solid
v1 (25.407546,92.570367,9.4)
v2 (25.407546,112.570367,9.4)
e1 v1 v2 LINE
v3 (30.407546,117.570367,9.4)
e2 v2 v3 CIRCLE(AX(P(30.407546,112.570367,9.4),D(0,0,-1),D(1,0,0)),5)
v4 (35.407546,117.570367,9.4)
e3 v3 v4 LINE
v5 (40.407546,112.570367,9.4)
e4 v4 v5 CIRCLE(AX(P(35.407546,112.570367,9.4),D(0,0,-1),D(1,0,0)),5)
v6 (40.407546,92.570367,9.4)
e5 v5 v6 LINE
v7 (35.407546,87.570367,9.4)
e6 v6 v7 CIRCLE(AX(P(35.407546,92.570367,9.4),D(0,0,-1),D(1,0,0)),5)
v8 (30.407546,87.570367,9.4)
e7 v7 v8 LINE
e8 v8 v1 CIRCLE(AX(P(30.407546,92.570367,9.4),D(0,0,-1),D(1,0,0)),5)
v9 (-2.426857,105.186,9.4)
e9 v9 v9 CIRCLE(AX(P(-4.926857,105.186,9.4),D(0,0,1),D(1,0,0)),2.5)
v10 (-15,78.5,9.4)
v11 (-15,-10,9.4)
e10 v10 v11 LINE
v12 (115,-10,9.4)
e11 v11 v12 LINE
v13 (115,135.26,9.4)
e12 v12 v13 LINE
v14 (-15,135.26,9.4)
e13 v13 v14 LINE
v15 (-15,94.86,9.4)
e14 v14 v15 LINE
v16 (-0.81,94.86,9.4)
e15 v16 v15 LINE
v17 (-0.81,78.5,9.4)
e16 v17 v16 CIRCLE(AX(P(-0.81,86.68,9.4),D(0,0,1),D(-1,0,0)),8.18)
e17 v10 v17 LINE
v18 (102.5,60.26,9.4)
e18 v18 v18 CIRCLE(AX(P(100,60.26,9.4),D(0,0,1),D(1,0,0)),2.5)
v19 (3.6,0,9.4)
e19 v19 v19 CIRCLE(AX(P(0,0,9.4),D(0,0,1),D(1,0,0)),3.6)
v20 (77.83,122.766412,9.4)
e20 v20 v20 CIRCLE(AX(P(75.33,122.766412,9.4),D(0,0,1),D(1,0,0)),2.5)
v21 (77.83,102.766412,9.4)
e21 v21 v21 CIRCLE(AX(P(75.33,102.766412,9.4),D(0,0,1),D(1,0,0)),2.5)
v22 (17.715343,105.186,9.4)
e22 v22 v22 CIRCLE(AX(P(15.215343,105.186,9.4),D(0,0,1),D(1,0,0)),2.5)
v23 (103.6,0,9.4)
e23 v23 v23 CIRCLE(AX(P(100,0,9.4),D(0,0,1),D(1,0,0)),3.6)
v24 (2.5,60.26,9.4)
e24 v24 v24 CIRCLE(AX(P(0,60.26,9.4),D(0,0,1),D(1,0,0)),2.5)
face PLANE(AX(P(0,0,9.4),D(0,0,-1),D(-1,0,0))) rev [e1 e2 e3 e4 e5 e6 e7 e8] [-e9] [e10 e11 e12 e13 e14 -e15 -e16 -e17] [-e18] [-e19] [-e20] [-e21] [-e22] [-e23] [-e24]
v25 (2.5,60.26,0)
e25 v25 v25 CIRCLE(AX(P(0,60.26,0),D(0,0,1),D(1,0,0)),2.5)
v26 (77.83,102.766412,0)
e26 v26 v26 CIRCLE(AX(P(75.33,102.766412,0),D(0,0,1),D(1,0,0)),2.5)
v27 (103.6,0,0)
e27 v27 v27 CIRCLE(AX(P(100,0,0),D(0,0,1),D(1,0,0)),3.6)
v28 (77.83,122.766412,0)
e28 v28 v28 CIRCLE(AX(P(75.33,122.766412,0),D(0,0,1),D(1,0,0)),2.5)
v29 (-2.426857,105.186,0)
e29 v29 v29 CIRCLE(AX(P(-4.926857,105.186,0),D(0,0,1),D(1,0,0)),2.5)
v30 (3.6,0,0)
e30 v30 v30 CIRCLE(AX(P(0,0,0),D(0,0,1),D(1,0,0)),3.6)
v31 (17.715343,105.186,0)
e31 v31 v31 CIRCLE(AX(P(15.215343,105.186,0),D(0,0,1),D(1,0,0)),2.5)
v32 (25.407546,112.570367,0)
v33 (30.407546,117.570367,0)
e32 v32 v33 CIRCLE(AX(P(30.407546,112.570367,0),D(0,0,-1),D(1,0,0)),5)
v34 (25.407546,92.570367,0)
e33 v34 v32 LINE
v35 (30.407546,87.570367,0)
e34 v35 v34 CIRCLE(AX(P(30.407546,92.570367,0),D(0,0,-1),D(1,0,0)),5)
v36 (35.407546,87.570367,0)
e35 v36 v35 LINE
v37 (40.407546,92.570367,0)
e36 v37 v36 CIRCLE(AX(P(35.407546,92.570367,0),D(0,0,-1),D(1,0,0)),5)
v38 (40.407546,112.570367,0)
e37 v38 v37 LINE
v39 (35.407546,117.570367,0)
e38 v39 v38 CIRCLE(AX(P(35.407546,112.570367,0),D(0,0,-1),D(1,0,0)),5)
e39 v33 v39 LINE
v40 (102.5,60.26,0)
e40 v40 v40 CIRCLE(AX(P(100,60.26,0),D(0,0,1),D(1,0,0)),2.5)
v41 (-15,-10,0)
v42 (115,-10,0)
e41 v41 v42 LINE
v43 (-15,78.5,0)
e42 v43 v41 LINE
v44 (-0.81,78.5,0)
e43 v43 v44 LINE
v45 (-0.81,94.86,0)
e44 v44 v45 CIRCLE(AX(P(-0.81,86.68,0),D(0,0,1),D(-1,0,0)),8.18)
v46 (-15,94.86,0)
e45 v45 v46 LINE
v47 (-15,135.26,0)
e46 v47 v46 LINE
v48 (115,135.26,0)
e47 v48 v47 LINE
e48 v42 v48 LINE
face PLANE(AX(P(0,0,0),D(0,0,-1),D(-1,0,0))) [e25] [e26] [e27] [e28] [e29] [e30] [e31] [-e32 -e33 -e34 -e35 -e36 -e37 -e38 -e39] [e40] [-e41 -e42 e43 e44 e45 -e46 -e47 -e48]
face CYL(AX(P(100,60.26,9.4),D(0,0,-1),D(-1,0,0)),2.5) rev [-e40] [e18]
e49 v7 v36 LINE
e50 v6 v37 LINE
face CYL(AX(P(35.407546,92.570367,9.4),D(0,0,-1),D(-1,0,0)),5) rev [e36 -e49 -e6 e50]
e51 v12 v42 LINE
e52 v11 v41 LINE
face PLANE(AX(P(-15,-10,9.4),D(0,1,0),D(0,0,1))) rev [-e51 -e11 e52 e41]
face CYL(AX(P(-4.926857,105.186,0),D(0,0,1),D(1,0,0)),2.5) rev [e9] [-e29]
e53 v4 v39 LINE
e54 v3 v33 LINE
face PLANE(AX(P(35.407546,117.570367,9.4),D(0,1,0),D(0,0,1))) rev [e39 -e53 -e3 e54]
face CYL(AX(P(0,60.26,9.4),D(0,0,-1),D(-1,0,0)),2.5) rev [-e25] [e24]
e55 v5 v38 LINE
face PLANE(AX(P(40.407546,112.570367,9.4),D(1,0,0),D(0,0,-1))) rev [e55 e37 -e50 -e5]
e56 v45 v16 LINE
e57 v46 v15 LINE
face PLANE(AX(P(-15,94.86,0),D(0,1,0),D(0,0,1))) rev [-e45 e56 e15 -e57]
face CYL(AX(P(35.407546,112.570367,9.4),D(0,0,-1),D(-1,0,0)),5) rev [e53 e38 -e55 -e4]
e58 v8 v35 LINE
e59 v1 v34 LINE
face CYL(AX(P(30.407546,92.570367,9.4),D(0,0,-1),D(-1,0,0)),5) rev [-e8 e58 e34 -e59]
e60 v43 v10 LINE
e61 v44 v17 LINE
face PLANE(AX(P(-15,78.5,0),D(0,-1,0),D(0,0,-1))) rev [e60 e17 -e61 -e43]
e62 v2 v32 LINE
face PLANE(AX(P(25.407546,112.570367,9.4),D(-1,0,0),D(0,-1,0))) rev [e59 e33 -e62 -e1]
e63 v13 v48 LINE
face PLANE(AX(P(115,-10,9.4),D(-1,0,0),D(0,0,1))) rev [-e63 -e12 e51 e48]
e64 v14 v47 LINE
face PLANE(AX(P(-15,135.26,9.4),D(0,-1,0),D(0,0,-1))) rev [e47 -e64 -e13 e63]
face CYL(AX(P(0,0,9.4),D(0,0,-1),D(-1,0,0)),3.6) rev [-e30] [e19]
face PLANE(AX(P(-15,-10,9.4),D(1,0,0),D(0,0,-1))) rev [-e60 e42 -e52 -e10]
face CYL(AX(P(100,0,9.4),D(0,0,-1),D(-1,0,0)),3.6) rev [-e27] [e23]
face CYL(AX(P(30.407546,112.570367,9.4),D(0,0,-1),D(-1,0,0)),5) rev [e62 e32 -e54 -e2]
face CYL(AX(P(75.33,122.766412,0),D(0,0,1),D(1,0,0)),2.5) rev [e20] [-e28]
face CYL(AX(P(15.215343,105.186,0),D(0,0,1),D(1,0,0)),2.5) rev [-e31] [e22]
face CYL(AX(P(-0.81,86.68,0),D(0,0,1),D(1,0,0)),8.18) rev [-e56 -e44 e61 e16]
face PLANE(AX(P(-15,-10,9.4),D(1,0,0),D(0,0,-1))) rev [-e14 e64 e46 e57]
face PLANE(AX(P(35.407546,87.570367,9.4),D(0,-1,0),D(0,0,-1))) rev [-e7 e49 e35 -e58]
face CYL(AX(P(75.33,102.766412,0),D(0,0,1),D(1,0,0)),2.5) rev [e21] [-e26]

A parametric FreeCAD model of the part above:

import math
import FreeCAD as App
import Part
import Sketcher
from FreeCAD import Vector
Q = App.Units.Quantity

doc = App.newDocument("Part")
body = doc.addObject("PartDesign::Body", "Body")

sketch1 = body.newObject("Sketcher::SketchObject", "Sketch")
sketch1.AttachmentSupport = (doc.getObject("XY_Plane"), [""])
sketch1.MapMode = "FlatFace"
sketch1.addGeometry(Part.LineSegment(Vector(-15, 135.26, 0), Vector(-15, -10, 0)), False)
sketch1.addGeometry(Part.LineSegment(Vector(-15, -10, 0), Vector(115, -10, 0)), False)
sketch1.addGeometry(Part.LineSegment(Vector(115, -10, 0), Vector(115, 135.26, 0)), False)
sketch1.addGeometry(Part.LineSegment(Vector(115, 135.26, 0), Vector(-15, 135.26, 0)), False)
sketch1.addGeometry(Part.Circle(Vector(0, 0, 0), Vector(0, 0, 1), 3.6), False)
sketch1.addGeometry(Part.Circle(Vector(100, 0, 0), Vector(0, 0, 1), 3.6), False)
sketch1.addGeometry(Part.Circle(Vector(0, 60.26, 0), Vector(0, 0, 1), 2.5), False)
sketch1.addGeometry(Part.Circle(Vector(100, 60.26, 0), Vector(0, 0, 1), 2.5), False)
sketch1.addConstraint(Sketcher.Constraint("Coincident", 0, 2, 1, 1))
sketch1.addConstraint(Sketcher.Constraint("Coincident", 1, 2, 2, 1))
sketch1.addConstraint(Sketcher.Constraint("Coincident", 2, 2, 3, 1))
sketch1.addConstraint(Sketcher.Constraint("Coincident", 3, 2, 0, 1))
sketch1.addConstraint(Sketcher.Constraint("Vertical", 0))
sketch1.addConstraint(Sketcher.Constraint("Horizontal", 1))
sketch1.addConstraint(Sketcher.Constraint("Vertical", 2))
sketch1.addConstraint(Sketcher.Constraint("Horizontal", 3))
sketch1.addConstraint(Sketcher.Constraint("Coincident", 4, 3, -1, 1))
sketch1.addConstraint(Sketcher.Constraint("Equal", 4, 5))
sketch1.addConstraint(Sketcher.Constraint("Equal", 6, 7))
sketch1.addConstraint(Sketcher.Constraint("PointOnObject", 5, 3, -1))
sketch1.addConstraint(Sketcher.Constraint("PointOnObject", 6, 3, -2))
sketch1.addConstraint(Sketcher.Constraint("Horizontal", 6, 3, 7, 3))
sketch1.addConstraint(Sketcher.Constraint("Vertical", 5, 3, 7, 3))
sketch1.addConstraint(Sketcher.Constraint("Diameter", 6, Q("5 mm")))
sketch1.addConstraint(Sketcher.Constraint("Diameter", 4, Q("7.2 mm")))
sketch1.addConstraint(Sketcher.Constraint("DistanceX", 1, 1, 1, 2, Q("130 mm")))
sketch1.addConstraint(Sketcher.Constraint("DistanceX", -1, 1, 5, 3, Q("100 mm")))
sketch1.addConstraint(Sketcher.Constraint("DistanceX", 0, 2, -1, 1, Q("15 mm")))
sketch1.addConstraint(Sketcher.Constraint("DistanceY", 0, 2, -1, 1, Q("10 mm")))
sketch1.addConstraint(Sketcher.Constraint("DistanceY", 7, 3, 2, 2, Q("75 mm")))
sketch1.addConstraint(Sketcher.Constraint("DistanceY", 0, 2, 0, 1, Q("145.26 mm")))
pad1 = body.newObject("PartDesign::Pad", "Pad")
pad1.Profile = sketch1
pad1.Length = 9.4

sketch2 = body.newObject("Sketcher::SketchObject", "Sketch001")
sketch2.AttachmentSupport = (doc.getObject("XY_Plane"), [""])
sketch2.MapMode = "FlatFace"
sketch2.AttachmentOffset = App.Placement(Vector(0, 0, 9.4), App.Rotation())
sketch2.addGeometry(Part.Circle(Vector(75.33, 122.766412, 0), Vector(0, 0, 1), 2.5), False)
sketch2.addGeometry(Part.Circle(Vector(75.33, 102.766412, 0), Vector(0, 0, 1), 2.5), False)
sketch2.addConstraint(Sketcher.Constraint("Equal", 0, 1))
sketch2.addConstraint(Sketcher.Constraint("Vertical", 0, 3, 1, 3))
sketch2.addConstraint(Sketcher.Constraint("Diameter", 0, Q("5 mm")))
sketch2.addConstraint(Sketcher.Constraint("DistanceY", 1, 3, 0, 3, Q("20 mm")))
sketch2.addConstraint(Sketcher.Constraint("DistanceX", -1, 1, 0, 3, Q("75.33 mm")))
sketch2.addConstraint(Sketcher.Constraint("DistanceY", -1, 1, 0, 3, Q("122.766412 mm")))
pocket1 = body.newObject("PartDesign::Pocket", "Pocket")
pocket1.Profile = sketch2
pocket1.Type = "ThroughAll"

sketch3 = body.newObject("Sketcher::SketchObject", "Sketch002")
sketch3.AttachmentSupport = (doc.getObject("XY_Plane"), [""])
sketch3.MapMode = "FlatFace"
sketch3.addGeometry(Part.LineSegment(Vector(30.407546, 117.570367, 0), Vector(35.407546, 117.570367, 0)), False)
sketch3.addGeometry(Part.ArcOfCircle(Part.Circle(Vector(35.407546, 112.570367, 0), Vector(0, 0, 1), 5), math.radians(0), math.radians(90)), False)
sketch3.addGeometry(Part.LineSegment(Vector(40.407546, 112.570367, 0), Vector(40.407546, 92.570367, 0)), False)
sketch3.addGeometry(Part.ArcOfCircle(Part.Circle(Vector(35.407546, 92.570367, 0), Vector(0, 0, 1), 5), math.radians(-90), math.radians(0)), False)
sketch3.addGeometry(Part.LineSegment(Vector(35.407546, 87.570367, 0), Vector(30.407546, 87.570367, 0)), False)
sketch3.addGeometry(Part.ArcOfCircle(Part.Circle(Vector(30.407546, 92.570367, 0), Vector(0, 0, 1), 5), math.radians(180), math.radians(270)), False)
sketch3.addGeometry(Part.LineSegment(Vector(25.407546, 92.570367, 0), Vector(25.407546, 112.570367, 0)), False)
sketch3.addGeometry(Part.ArcOfCircle(Part.Circle(Vector(30.407546, 112.570367, 0), Vector(0, 0, 1), 5), math.radians(90), math.radians(180)), False)
sketch3.addConstraint(Sketcher.Constraint("Tangent", 0, 2, 1, 2))
sketch3.addConstraint(Sketcher.Constraint("Tangent", 1, 1, 2, 1))
sketch3.addConstraint(Sketcher.Constraint("Tangent", 2, 2, 3, 2))
sketch3.addConstraint(Sketcher.Constraint("Tangent", 3, 1, 4, 1))
sketch3.addConstraint(Sketcher.Constraint("Tangent", 4, 2, 5, 2))
sketch3.addConstraint(Sketcher.Constraint("Tangent", 5, 1, 6, 1))
sketch3.addConstraint(Sketcher.Constraint("Tangent", 6, 2, 7, 2))
sketch3.addConstraint(Sketcher.Constraint("Tangent", 7, 1, 0, 1))
sketch3.addConstraint(Sketcher.Constraint("Horizontal", 0))
sketch3.addConstraint(Sketcher.Constraint("Vertical", 2))
sketch3.addConstraint(Sketcher.Constraint("Horizontal", 4))
sketch3.addConstraint(Sketcher.Constraint("Vertical", 6))
sketch3.addConstraint(Sketcher.Constraint("Equal", 1, 3))
sketch3.addConstraint(Sketcher.Constraint("Equal", 3, 5))
sketch3.addConstraint(Sketcher.Constraint("Equal", 5, 7))
sketch3.addConstraint(Sketcher.Constraint("Radius", 1, Q("5 mm")))
sketch3.addConstraint(Sketcher.Constraint("DistanceX", 0, 1, 0, 2, Q("5 mm")))
sketch3.addConstraint(Sketcher.Constraint("DistanceY", 2, 2, 2, 1, Q("20 mm")))
sketch3.addConstraint(Sketcher.Constraint("DistanceX", -1, 1, 1, 3, Q("35.407546 mm")))
sketch3.addConstraint(Sketcher.Constraint("DistanceY", -1, 1, 1, 3, Q("112.570367 mm")))
pocket2 = body.newObject("PartDesign::Pocket", "Pocket001")
pocket2.Profile = sketch3
pocket2.Type = "ThroughAll"
pocket2.Reversed = True

sketch4 = body.newObject("Sketcher::SketchObject", "Sketch003")
sketch4.AttachmentSupport = (doc.getObject("XY_Plane"), [""])
sketch4.MapMode = "FlatFace"
sketch4.AttachmentOffset = App.Placement(Vector(0, 0, 9.4), App.Rotation())
sketch4.addGeometry(Part.LineSegment(Vector(-15, 94.86, 0), Vector(-15, 78.5, 0)), False)
sketch4.addGeometry(Part.LineSegment(Vector(-15, 78.5, 0), Vector(-0.81, 78.5, 0)), False)
sketch4.addGeometry(Part.ArcOfCircle(Part.Circle(Vector(-0.81, 86.68, 0), Vector(0, 0, 1), 8.18), math.radians(-90), math.radians(90)), False)
sketch4.addGeometry(Part.LineSegment(Vector(-0.81, 94.86, 0), Vector(-15, 94.86, 0)), False)
sketch4.addConstraint(Sketcher.Constraint("Coincident", 0, 2, 1, 1))
sketch4.addConstraint(Sketcher.Constraint("Tangent", 1, 2, 2, 1))
sketch4.addConstraint(Sketcher.Constraint("Tangent", 2, 2, 3, 1))
sketch4.addConstraint(Sketcher.Constraint("Coincident", 3, 2, 0, 1))
sketch4.addConstraint(Sketcher.Constraint("Vertical", 0))
sketch4.addConstraint(Sketcher.Constraint("Horizontal", 1))
sketch4.addConstraint(Sketcher.Constraint("Horizontal", 3))
sketch4.addConstraint(Sketcher.Constraint("Radius", 2, Q("8.18 mm")))
sketch4.addConstraint(Sketcher.Constraint("DistanceX", 0, 2, -1, 1, Q("15 mm")))
sketch4.addConstraint(Sketcher.Constraint("DistanceX", 1, 1, 1, 2, Q("14.19 mm")))
sketch4.addConstraint(Sketcher.Constraint("DistanceY", -1, 1, 0, 2, Q("78.5 mm")))
pocket3 = body.newObject("PartDesign::Pocket", "Pocket002")
pocket3.Profile = sketch4
pocket3.Type = "ThroughAll"

sketch5 = body.newObject("Sketcher::SketchObject", "Sketch004")
sketch5.AttachmentSupport = (doc.getObject("XY_Plane"), [""])
sketch5.MapMode = "FlatFace"
sketch5.AttachmentOffset = App.Placement(Vector(0, 0, 9.4), App.Rotation())
sketch5.addGeometry(Part.Circle(Vector(-4.926857, 105.186, 0), Vector(0, 0, 1), 2.5), False)
sketch5.addGeometry(Part.Circle(Vector(15.215343, 105.186, 0), Vector(0, 0, 1), 2.5), False)
sketch5.addConstraint(Sketcher.Constraint("Equal", 0, 1))
sketch5.addConstraint(Sketcher.Constraint("Horizontal", 0, 3, 1, 3))
sketch5.addConstraint(Sketcher.Constraint("Diameter", 0, Q("5 mm")))
sketch5.addConstraint(Sketcher.Constraint("DistanceY", -1, 1, 0, 3, Q("105.186 mm")))
sketch5.addConstraint(Sketcher.Constraint("DistanceX", 0, 3, 1, 3, Q("20.1422 mm")))
sketch5.addConstraint(Sketcher.Constraint("DistanceX", 0, 3, -1, 1, Q("4.926857 mm")))
pocket4 = body.newObject("PartDesign::Pocket", "Pocket003")
pocket4.Profile = sketch5
pocket4.Type = "ThroughAll"

doc.recompute()
